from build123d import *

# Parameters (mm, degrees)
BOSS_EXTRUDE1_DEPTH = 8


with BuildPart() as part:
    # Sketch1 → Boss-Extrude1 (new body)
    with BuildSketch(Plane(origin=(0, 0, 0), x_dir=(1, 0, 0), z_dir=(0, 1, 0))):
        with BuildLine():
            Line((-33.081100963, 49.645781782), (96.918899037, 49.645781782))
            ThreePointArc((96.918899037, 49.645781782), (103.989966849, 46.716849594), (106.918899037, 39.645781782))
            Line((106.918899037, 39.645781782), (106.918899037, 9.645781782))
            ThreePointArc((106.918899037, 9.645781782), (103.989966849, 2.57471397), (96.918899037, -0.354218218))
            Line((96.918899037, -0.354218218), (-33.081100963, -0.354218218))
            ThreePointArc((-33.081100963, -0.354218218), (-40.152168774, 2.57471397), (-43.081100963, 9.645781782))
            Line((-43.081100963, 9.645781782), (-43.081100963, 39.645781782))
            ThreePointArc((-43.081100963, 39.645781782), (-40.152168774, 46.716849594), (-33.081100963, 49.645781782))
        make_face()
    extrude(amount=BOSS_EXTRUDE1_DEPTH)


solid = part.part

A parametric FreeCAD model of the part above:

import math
import FreeCAD as App
import Part
import Sketcher

doc = App.newDocument("Part")
body = doc.addObject("PartDesign::Body", "Body")

# Sketch on XZ plane
sketch1 = doc.addObject("Sketcher::SketchObject", "Sketch")
body.addObject(sketch1)
sketch1.AttachmentSupport = (doc.XZ_Plane, [""])
sketch1.MapMode = "FlatFace"
sketch1.addGeometry(Part.LineSegment(App.Vector(97, -50, 0), App.Vector(-33, -50, 0)), False)
sketch1.addGeometry(Part.ArcOfCircle(Part.Circle(App.Vector(-33, -40, 0), App.Vector(0, 0, 1), 10), math.radians(-180), math.radians(-90)), False)
sketch1.addGeometry(Part.LineSegment(App.Vector(-43, -40, 0), App.Vector(-43, -10, 0)), False)
sketch1.addGeometry(Part.ArcOfCircle(Part.Circle(App.Vector(-33, -10, 0), App.Vector(0, 0, 1), 10), math.radians(90), math.radians(180)), False)
sketch1.addGeometry(Part.LineSegment(App.Vector(-33, 0, 0), App.Vector(97, 0, 0)), False)
sketch1.addGeometry(Part.ArcOfCircle(Part.Circle(App.Vector(97, -10, 0), App.Vector(0, 0, 1), 10), math.radians(0), math.radians(90)), False)
sketch1.addGeometry(Part.LineSegment(App.Vector(107, -10, 0), App.Vector(107, -40, 0)), False)
sketch1.addGeometry(Part.ArcOfCircle(Part.Circle(App.Vector(97, -40, 0), App.Vector(0, 0, 1), 10), math.radians(-90), math.radians(0)), False)
sketch1.addConstraint(Sketcher.Constraint("Tangent", 0, 2, 1, 2))
sketch1.addConstraint(Sketcher.Constraint("Tangent", 1, 1, 2, 1))
sketch1.addConstraint(Sketcher.Constraint("Tangent", 2, 2, 3, 2))
sketch1.addConstraint(Sketcher.Constraint("Tangent", 3, 1, 4, 1))
sketch1.addConstraint(Sketcher.Constraint("Tangent", 4, 2, 5, 2))
sketch1.addConstraint(Sketcher.Constraint("Tangent", 5, 1, 6, 1))
sketch1.addConstraint(Sketcher.Constraint("Tangent", 6, 2, 7, 2))
sketch1.addConstraint(Sketcher.Constraint("Tangent", 7, 1, 0, 1))
sketch1.addConstraint(Sketcher.Constraint("Horizontal", 0))
sketch1.addConstraint(Sketcher.Constraint("Vertical", 2))
sketch1.addConstraint(Sketcher.Constraint("Horizontal", 4))
sketch1.addConstraint(Sketcher.Constraint("Vertical", 6))
sketch1.addConstraint(Sketcher.Constraint("Equal", 1, 3))
sketch1.addConstraint(Sketcher.Constraint("Equal", 3, 5))
sketch1.addConstraint(Sketcher.Constraint("Equal", 5, 7))
sketch1.addConstraint(Sketcher.Constraint("Radius", 1, 10.0))
sketch1.addConstraint(Sketcher.Constraint("DistanceX", 0, 2, 0, 1, 130.0))
sketch1.addConstraint(Sketcher.Constraint("DistanceY", 2, 1, 2, 2, 30.0))
sketch1.addConstraint(Sketcher.Constraint("DistanceX", 1, 3, -1, 1, 33.081101))
sketch1.addConstraint(Sketcher.Constraint("DistanceY", 1, 3, -1, 1, 39.645782))
pad1 = doc.addObject("PartDesign::Pad", "Pad")
body.addObject(pad1)
pad1.Profile = sketch1
pad1.Length = 8
pad1.Reversed = True

doc.recompute()
